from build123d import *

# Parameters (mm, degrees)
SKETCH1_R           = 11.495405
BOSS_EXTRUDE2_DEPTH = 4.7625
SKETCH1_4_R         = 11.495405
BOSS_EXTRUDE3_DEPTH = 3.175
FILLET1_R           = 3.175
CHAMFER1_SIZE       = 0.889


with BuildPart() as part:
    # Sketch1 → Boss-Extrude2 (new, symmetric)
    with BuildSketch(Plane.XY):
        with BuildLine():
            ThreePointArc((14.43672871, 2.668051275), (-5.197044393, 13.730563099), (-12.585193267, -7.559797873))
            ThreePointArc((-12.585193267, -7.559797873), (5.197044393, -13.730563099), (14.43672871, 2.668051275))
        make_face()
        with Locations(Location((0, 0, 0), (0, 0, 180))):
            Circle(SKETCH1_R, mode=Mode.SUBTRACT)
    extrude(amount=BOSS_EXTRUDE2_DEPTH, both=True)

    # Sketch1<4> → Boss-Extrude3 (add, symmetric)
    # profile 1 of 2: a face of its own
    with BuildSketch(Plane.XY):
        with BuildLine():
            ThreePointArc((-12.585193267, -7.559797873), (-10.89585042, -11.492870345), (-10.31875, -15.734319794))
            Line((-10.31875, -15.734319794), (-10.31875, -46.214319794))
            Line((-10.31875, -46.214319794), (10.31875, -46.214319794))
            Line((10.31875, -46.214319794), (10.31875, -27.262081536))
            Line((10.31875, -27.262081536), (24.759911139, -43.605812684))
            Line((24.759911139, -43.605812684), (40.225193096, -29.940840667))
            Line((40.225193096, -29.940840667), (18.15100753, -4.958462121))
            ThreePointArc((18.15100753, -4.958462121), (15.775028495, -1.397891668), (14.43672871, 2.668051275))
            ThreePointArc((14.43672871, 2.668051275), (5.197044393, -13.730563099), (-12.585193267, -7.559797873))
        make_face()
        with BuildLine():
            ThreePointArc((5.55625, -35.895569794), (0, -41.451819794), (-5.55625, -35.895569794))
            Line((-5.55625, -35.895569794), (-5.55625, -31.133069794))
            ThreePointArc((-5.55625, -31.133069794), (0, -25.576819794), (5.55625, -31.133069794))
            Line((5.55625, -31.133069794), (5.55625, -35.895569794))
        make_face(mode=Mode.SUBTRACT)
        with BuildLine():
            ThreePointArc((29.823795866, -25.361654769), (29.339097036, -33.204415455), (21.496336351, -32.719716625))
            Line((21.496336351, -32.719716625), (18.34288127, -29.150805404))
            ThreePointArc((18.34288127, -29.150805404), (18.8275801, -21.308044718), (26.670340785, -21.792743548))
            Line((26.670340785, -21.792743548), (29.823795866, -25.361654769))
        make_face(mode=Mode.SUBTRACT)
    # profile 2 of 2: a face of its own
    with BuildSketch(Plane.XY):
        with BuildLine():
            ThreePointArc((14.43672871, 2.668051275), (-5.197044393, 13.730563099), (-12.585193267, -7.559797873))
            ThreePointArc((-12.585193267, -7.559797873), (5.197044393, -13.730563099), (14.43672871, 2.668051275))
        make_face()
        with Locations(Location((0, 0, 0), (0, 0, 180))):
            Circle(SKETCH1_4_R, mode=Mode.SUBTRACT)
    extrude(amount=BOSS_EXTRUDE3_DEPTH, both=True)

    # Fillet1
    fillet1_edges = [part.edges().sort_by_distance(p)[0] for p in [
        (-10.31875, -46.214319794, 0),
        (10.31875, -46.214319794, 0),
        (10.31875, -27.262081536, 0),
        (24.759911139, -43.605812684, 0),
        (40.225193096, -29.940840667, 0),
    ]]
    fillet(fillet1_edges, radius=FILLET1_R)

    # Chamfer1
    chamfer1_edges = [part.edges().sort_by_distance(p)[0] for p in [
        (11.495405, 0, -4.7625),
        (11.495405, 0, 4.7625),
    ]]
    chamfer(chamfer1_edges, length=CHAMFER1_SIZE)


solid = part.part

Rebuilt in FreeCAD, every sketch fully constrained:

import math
import FreeCAD as App
import Part
import Sketcher
Q = App.Units.Quantity


def edges_at(feature, points):
    """Names of the edges that pass closest to the given points."""
    edges = feature.Shape.Edges
    near = lambda p: min(range(len(edges)), key=lambda i: edges[i].distToShape(Part.Vertex(*p))[0])
    return sorted({f"Edge{near(p) + 1}" for p in points})

doc = App.newDocument("Part")
body = doc.addObject("PartDesign::Body", "Body")

# Sketch on XY plane
sketch1 = body.newObject("Sketcher::SketchObject", "Sketch")
sketch1.AttachmentSupport = (doc.getObject("XY_Plane"), [""])
sketch1.MapMode = "FlatFace"
sketch1.addGeometry([
    Part.ArcOfCircle(Part.Circle(App.Vector(0, 0, 0), App.Vector(0, 0, 1), 15), math.radians(10), math.radians(211)),
    Part.ArcOfCircle(Part.Circle(App.Vector(0, 0, 0), App.Vector(0, 0, 1), 15), math.radians(-149), math.radians(10)),
    Part.Circle(App.Vector(0, 0, 0), App.Vector(0, 0, 1), 11),
], False)
sketch1.addConstraint([
    Sketcher.Constraint("Tangent", 0, 1, 1, 2),
    Sketcher.Constraint("Coincident", 1, 1, 0, 2),
    Sketcher.Constraint("Coincident", 0, 3, -1, 1),
    Sketcher.Constraint("Coincident", 2, 3, -1, 1),
    Sketcher.Constraint("Radius", 0, Q("0.578 in")),
    Sketcher.Constraint("Diameter", 2, Q("22.99081 mm")),
    Sketcher.Constraint("DistanceX", -1, 1, 0, 1, Q("14.436729 mm")),
    Sketcher.Constraint("DistanceX", 1, 1, 0, 1, Q("27.021922 mm")),
])
pad1 = body.newObject("PartDesign::Pad", "Pad")
pad1.Profile = sketch1
pad1.Length = Q("0.375 in")
pad1.Midplane = True

# Sketch on XY plane
sketch2 = body.newObject("Sketcher::SketchObject", "Sketch001")
sketch2.AttachmentSupport = (doc.getObject("XY_Plane"), [""])
sketch2.MapMode = "FlatFace"
sketch2.addGeometry([
    Part.ArcOfCircle(Part.Circle(App.Vector(-26.2, -15.7, 0), App.Vector(0, 0, 1), 15.9), math.radians(0), math.radians(31)),  # 0
    Part.LineSegment(App.Vector(-10.3, -15.7, 0), App.Vector(-10.3, -46.2, 0)),  # 1
    Part.LineSegment(App.Vector(-10.3, -46.2, 0), App.Vector(10.3, -46.2, 0)),  # 2
    Part.LineSegment(App.Vector(10.3, -46.2, 0), App.Vector(10.3, -27.3, 0)),  # 3
    Part.LineSegment(App.Vector(10.3, -27.3, 0), App.Vector(24.8, -43.6, 0)),  # 4
    Part.LineSegment(App.Vector(24.8, -43.6, 0), App.Vector(40.2, -29.9, 0)),  # 5
    Part.LineSegment(App.Vector(40.2, -29.9, 0), App.Vector(18.2, -5, 0)),  # 6
    Part.ArcOfCircle(Part.Circle(App.Vector(30, 5.6, 0), App.Vector(0, 0, 1), 15.9), math.radians(-170), math.radians(-139)),  # 7
    Part.ArcOfCircle(Part.Circle(App.Vector(0, 0, 0), App.Vector(0, 0, 1), 14.7), math.radians(10), math.radians(211)),  # 8
    Part.LineSegment(App.Vector(5.6, -31.1, 0), App.Vector(5.6, -35.9, 0)),  # 9
    Part.ArcOfCircle(Part.Circle(App.Vector(0, -35.9, 0), App.Vector(0, 0, 1), 5.6), math.radians(180), math.radians(360)),  # 10
    Part.LineSegment(App.Vector(-5.6, -35.9, 0), App.Vector(-5.6, -31.1, 0)),  # 11
    Part.ArcOfCircle(Part.Circle(App.Vector(0, -31.1, 0), App.Vector(0, 0, 1), 5.6), math.radians(0), math.radians(180)),  # 12
    Part.LineSegment(App.Vector(26.7, -21.8, 0), App.Vector(29.8, -25.4, 0)),  # 13
    Part.ArcOfCircle(Part.Circle(App.Vector(25.7, -29, 0), App.Vector(0, 0, 1), 5.6), math.radians(-139), math.radians(41)),  # 14
    Part.LineSegment(App.Vector(21.5, -32.7, 0), App.Vector(18.3, -29.2, 0)),  # 15
    Part.ArcOfCircle(Part.Circle(App.Vector(22.5, -25.5, 0), App.Vector(0, 0, 1), 5.6), math.radians(41), math.radians(221)),  # 16
    Part.Circle(App.Vector(0, 0, 0), App.Vector(0, 0, 1), 11.5),  # 17
], False)
sketch2.addConstraint([
    Sketcher.Constraint("Tangent", 0, 1, 1, 1),
    Sketcher.Constraint("Coincident", 1, 2, 2, 1),
    Sketcher.Constraint("Coincident", 2, 2, 3, 1),
    Sketcher.Constraint("Coincident", 3, 2, 4, 1),
    Sketcher.Constraint("Coincident", 4, 2, 5, 1),
    Sketcher.Constraint("Coincident", 5, 2, 6, 1),
    Sketcher.Constraint("Tangent", 6, 2, 7, 2),
    Sketcher.Constraint("Tangent", 7, 1, 8, 1),
    Sketcher.Constraint("Tangent", 8, 2, 0, 2),
    Sketcher.Constraint("Tangent", 9, 2, 10, 2),
    Sketcher.Constraint("Tangent", 10, 1, 11, 1),
    Sketcher.Constraint("Tangent", 11, 2, 12, 2),
    Sketcher.Constraint("Tangent", 12, 1, 9, 1),
    Sketcher.Constraint("Tangent", 13, 2, 14, 2),
    Sketcher.Constraint("Tangent", 14, 1, 15, 1),
    Sketcher.Constraint("Tangent", 15, 2, 16, 2),
    Sketcher.Constraint("Tangent", 16, 1, 13, 1),
    Sketcher.Constraint("Vertical", 1),
    Sketcher.Constraint("Horizontal", 2),
    Sketcher.Constraint("Vertical", 3),
    Sketcher.Constraint("Vertical", 9),
    Sketcher.Constraint("Vertical", 11),
    Sketcher.Constraint("Coincident", 8, 3, -1, 1),
    Sketcher.Constraint("Coincident", 17, 3, -1, 1),
    Sketcher.Constraint("Equal", 0, 7),
    Sketcher.Constraint("Equal", 12, 14),
    Sketcher.Constraint("Equal", 14, 16),
    Sketcher.Constraint("PointOnObject", 10, 3, -2),
    Sketcher.Constraint("Perpendicular", 4, 5),
    Sketcher.Constraint("Perpendicular", 5, 6),
    Sketcher.Constraint("Parallel", 6, 13),
    Sketcher.Constraint("DistanceY", 1, 2, 1, 1, Q("1.2 in")),
    Sketcher.Constraint("Radius", 0, Q("0.625 in")),
    Sketcher.Constraint("Radius", 8, Q("0.578 in")),
    Sketcher.Constraint("Radius", 10, Q("0.21875 in")),
    Sketcher.Constraint("DistanceX", 2, 1, 2, 2, Q("0.8125 in")),
    Sketcher.Constraint("DistanceY", 9, 2, 9, 1, Q("0.1875 in")),
    Sketcher.Constraint("Distance", 5, Q("0.8125 in")),
    Sketcher.Constraint("Distance", 6, Q("1.3125 in")),
    Sketcher.Constraint("Distance", 13, Q("0.1875 in")),
    Sketcher.Constraint("Diameter", 17, Q("22.99081 mm")),
    Sketcher.Constraint("DistanceX", 0, 3, -1, 1, Q("1.03125 in")),
    Sketcher.Constraint("DistanceY", 1, 2, 10, 3, Q("0.40625 in")),
    Sketcher.Constraint("DistanceY", 3, 1, 3, 2, Q("18.952238 mm")),
    Sketcher.Constraint("DistanceX", 16, 3, 4, 2, Q("2.2533 mm")),
    Sketcher.Constraint("Distance", 4, Q("21.809738 mm")),
    Sketcher.Constraint("DistanceY", 14, 3, 7, 3, Q("34.593741 mm")),
])
pad2 = body.newObject("PartDesign::Pad", "Pad001")
pad2.Profile = sketch2
pad2.Length = Q("0.25 in")
pad2.Midplane = True
doc.recompute()

fillet = body.newObject("PartDesign::Fillet", "Fillet")
fillet.Base = (pad2, edges_at(pad2, [
    (-10.319, -46.214, 0),
    (10.319, -46.214, 0),
    (10.319, -27.262, 0),
    (24.76, -43.606, 0),
    (40.225, -29.941, 0),
]))
fillet.Radius = Q("0.125 in")
doc.recompute()

chamfer = body.newObject("PartDesign::Chamfer", "Chamfer")
chamfer.Base = (fillet, edges_at(fillet, [(11.495, 0, -4.763), (11.495, 0, 4.763)]))
chamfer.Size = Q("0.035 in")

doc.recompute()
